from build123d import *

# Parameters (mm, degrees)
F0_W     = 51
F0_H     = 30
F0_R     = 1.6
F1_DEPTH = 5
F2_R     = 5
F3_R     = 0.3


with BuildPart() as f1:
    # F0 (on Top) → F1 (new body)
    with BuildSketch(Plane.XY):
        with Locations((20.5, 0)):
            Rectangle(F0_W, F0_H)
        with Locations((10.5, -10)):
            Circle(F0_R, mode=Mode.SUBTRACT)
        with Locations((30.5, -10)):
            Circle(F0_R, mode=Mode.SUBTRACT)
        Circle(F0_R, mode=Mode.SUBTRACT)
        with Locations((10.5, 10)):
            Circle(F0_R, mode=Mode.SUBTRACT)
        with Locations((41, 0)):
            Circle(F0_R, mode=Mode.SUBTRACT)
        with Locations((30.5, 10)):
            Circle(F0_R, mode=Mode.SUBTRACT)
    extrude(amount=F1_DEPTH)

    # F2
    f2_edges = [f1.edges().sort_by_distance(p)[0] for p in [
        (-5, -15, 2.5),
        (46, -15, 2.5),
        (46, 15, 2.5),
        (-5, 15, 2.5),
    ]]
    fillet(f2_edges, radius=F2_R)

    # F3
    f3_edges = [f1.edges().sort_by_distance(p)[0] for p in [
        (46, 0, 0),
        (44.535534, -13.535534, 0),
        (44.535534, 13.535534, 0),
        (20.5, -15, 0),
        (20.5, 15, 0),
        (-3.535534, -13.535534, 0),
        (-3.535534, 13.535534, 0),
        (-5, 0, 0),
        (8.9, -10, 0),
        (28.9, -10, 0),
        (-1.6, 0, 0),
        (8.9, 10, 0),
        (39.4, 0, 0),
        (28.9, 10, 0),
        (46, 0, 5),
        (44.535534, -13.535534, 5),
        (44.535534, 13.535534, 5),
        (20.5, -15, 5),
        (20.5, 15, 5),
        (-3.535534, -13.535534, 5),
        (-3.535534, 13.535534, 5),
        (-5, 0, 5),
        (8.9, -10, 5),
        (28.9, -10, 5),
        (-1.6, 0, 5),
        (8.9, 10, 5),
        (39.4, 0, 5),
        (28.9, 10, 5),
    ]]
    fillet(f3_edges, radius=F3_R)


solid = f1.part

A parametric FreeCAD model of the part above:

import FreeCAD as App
import Part
import Sketcher

V = App.Vector
Q = App.Units.Quantity


def edges_at(feature, points):
    """Names of the edges that pass closest to the given points."""
    edges = feature.Shape.Edges
    near = lambda p: min(range(len(edges)), key=lambda i: edges[i].distToShape(Part.Vertex(*p))[0])
    return sorted({f"Edge{near(p) + 1}" for p in points})

doc = App.newDocument("Part")
body = doc.addObject("PartDesign::Body", "Body")

# Sketch on XY plane
sketch1 = body.newObject("Sketcher::SketchObject", "Sketch")
sketch1.AttachmentSupport = (doc.getObject("XY_Plane"), [""])
sketch1.MapMode = "FlatFace"
sketch1.addGeometry(Part.LineSegment(V(-5, 15, 0), V(-5, -15, 0)), False)
sketch1.addGeometry(Part.LineSegment(V(-5, -15, 0), V(46, -15, 0)), False)
sketch1.addGeometry(Part.LineSegment(V(46, -15, 0), V(46, 15, 0)), False)
sketch1.addGeometry(Part.LineSegment(V(46, 15, 0), V(-5, 15, 0)), False)
sketch1.addGeometry(Part.Circle(V(10.5, -10, 0), V(0, 0, 1), 1.6), False)
sketch1.addGeometry(Part.Circle(V(30.5, -10, 0), V(0, 0, 1), 1.6), False)
sketch1.addGeometry(Part.Circle(V(0, 0, 0), V(0, 0, 1), 1.6), False)
sketch1.addGeometry(Part.Circle(V(10.5, 10, 0), V(0, 0, 1), 1.6), False)
sketch1.addGeometry(Part.Circle(V(41, 0, 0), V(0, 0, 1), 1.6), False)
sketch1.addGeometry(Part.Circle(V(30.5, 10, 0), V(0, 0, 1), 1.6), False)
sketch1.addConstraint(Sketcher.Constraint("Coincident", 0, 2, 1, 1))
sketch1.addConstraint(Sketcher.Constraint("Coincident", 1, 2, 2, 1))
sketch1.addConstraint(Sketcher.Constraint("Coincident", 2, 2, 3, 1))
sketch1.addConstraint(Sketcher.Constraint("Coincident", 3, 2, 0, 1))
sketch1.addConstraint(Sketcher.Constraint("Vertical", 0))
sketch1.addConstraint(Sketcher.Constraint("Horizontal", 1))
sketch1.addConstraint(Sketcher.Constraint("Vertical", 2))
sketch1.addConstraint(Sketcher.Constraint("Horizontal", 3))
sketch1.addConstraint(Sketcher.Constraint("Coincident", 6, 3, -1, 1))
sketch1.addConstraint(Sketcher.Constraint("Equal", 4, 5))
sketch1.addConstraint(Sketcher.Constraint("Equal", 5, 6))
sketch1.addConstraint(Sketcher.Constraint("Equal", 6, 7))
sketch1.addConstraint(Sketcher.Constraint("Equal", 7, 8))
sketch1.addConstraint(Sketcher.Constraint("Equal", 8, 9))
sketch1.addConstraint(Sketcher.Constraint("Symmetric", 4, 3, 7, 3, -1))
sketch1.addConstraint(Sketcher.Constraint("Symmetric", 5, 3, 9, 3, -1))
sketch1.addConstraint(Sketcher.Constraint("PointOnObject", 8, 3, -1))
sketch1.addConstraint(Sketcher.Constraint("Horizontal", 4, 3, 5, 3))
sketch1.addConstraint(Sketcher.Constraint("Diameter", 4, Q("3.2 mm")))
sketch1.addConstraint(Sketcher.Constraint("DistanceX", 1, 1, 1, 2, Q("51 mm")))
sketch1.addConstraint(Sketcher.Constraint("DistanceY", 0, 2, 0, 1, Q("30 mm")))
sketch1.addConstraint(Sketcher.Constraint("DistanceY", 4, 3, -1, 1, Q("10 mm")))
sketch1.addConstraint(Sketcher.Constraint("DistanceX", -1, 1, 8, 3, Q("41 mm")))
sketch1.addConstraint(Sketcher.Constraint("DistanceX", 0, 2, -1, 1, Q("5 mm")))
sketch1.addConstraint(Sketcher.Constraint("DistanceY", 0, 2, -1, 1, Q("15 mm")))
sketch1.addConstraint(Sketcher.Constraint("DistanceX", 4, 3, 5, 3, Q("20 mm")))
sketch1.addConstraint(Sketcher.Constraint("DistanceX", -1, 1, 4, 3, Q("10.5 mm")))
pad1 = body.newObject("PartDesign::Pad", "Pad")
pad1.Profile = sketch1
pad1.Length = 5
doc.recompute()

fillet = body.newObject("PartDesign::Fillet", "Fillet")
fillet.Base = (pad1, edges_at(pad1, [
    (-5, -15, 2.5),
    (46, -15, 2.5),
    (46, 15, 2.5),
    (-5, 15, 2.5),
]))
fillet.Radius = 5
doc.recompute()

fillet2 = body.newObject("PartDesign::Fillet", "Fillet001")
fillet2.Base = (fillet, edges_at(fillet, [
    (46, 0, 0),
    (44.536, -13.536, 0),
    (44.536, 13.536, 0),
    (20.5, -15, 0),
    (20.5, 15, 0),
    (-3.536, -13.536, 0),
    (-3.536, 13.536, 0),
    (-5, 0, 0),
    (8.9, -10, 0),
    (28.9, -10, 0),
    (-1.6, 0, 0),
    (8.9, 10, 0),
    (39.4, 0, 0),
    (28.9, 10, 0),
    (46, 0, 5),
    (44.536, -13.536, 5),
    (44.536, 13.536, 5),
    (20.5, -15, 5),
    (20.5, 15, 5),
    (-3.536, -13.536, 5),
    (-3.536, 13.536, 5),
    (-5, 0, 5),
    (8.9, -10, 5),
    (28.9, -10, 5),
    (-1.6, 0, 5),
    (8.9, 10, 5),
    (39.4, 0, 5),
    (28.9, 10, 5),
]))
fillet2.Radius = 0.3

doc.recompute()
